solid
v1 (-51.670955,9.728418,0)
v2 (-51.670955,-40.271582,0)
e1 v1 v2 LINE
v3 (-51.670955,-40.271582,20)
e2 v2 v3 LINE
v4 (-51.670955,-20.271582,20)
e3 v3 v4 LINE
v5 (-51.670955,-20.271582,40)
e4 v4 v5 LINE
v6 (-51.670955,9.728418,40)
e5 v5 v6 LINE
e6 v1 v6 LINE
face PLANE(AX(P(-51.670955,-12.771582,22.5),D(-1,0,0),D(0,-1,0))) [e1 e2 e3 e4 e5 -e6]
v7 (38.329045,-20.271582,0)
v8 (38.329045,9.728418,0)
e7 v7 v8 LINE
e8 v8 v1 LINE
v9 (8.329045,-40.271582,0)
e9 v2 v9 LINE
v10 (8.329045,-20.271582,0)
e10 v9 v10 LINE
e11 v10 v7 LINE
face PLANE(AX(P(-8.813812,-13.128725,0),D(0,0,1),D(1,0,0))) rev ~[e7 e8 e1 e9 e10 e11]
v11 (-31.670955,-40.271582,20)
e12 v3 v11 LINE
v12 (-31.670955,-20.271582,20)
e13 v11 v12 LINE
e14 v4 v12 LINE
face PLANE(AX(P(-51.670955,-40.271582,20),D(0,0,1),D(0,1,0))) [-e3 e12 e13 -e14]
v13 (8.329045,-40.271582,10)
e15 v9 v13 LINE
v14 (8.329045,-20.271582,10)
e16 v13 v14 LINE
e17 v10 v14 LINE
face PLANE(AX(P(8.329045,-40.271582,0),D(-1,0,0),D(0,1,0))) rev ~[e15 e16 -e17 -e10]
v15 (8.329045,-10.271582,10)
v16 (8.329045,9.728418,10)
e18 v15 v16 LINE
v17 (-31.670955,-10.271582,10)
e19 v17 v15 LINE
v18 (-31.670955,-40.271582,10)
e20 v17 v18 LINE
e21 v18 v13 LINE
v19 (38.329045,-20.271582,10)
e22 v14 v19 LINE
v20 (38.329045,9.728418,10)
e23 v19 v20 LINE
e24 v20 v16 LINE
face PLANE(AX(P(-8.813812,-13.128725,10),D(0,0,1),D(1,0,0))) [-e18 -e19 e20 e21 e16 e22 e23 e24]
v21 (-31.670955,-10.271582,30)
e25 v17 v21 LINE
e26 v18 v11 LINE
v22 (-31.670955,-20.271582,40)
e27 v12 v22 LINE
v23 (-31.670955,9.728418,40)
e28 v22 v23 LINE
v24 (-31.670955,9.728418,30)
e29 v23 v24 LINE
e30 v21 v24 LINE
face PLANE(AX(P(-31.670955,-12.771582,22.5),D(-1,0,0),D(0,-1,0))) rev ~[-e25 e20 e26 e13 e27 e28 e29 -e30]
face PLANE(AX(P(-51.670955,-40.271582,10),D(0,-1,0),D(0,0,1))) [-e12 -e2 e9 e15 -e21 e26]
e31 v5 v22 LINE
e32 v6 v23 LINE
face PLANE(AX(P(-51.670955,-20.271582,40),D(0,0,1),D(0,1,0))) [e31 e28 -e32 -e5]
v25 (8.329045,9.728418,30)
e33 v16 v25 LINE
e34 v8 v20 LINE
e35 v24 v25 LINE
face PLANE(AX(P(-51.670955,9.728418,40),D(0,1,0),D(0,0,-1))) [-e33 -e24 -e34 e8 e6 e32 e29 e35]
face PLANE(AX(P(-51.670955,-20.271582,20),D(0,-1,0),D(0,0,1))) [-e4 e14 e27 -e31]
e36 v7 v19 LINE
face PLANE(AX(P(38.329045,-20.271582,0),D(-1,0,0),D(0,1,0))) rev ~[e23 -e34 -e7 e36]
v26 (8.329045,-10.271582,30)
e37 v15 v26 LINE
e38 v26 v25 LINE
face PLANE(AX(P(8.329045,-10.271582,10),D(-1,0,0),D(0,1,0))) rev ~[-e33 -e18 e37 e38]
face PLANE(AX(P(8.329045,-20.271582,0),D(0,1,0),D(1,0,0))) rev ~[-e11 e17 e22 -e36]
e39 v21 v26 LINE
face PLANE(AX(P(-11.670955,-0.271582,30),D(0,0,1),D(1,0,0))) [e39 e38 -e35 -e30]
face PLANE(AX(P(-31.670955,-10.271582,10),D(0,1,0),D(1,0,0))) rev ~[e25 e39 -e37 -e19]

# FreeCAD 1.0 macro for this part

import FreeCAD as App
import Part
import Sketcher
from FreeCAD import Vector

doc = App.newDocument("Part")
body = doc.addObject("PartDesign::Body", "Body")

# Sketch on XY plane
sketch1 = doc.addObject("Sketcher::SketchObject", "Sketch")
body.addObject(sketch1)
sketch1.AttachmentSupport = (doc.XY_Plane, [""])
sketch1.MapMode = "FlatFace"
sketch1.addGeometry(Part.LineSegment(Vector(-52, 10, 0), Vector(-52, -40, 0)), False)
sketch1.addGeometry(Part.LineSegment(Vector(-52, -40, 0), Vector(8, -40, 0)), False)
sketch1.addGeometry(Part.LineSegment(Vector(8, -40, 0), Vector(8, -20, 0)), False)
sketch1.addGeometry(Part.LineSegment(Vector(8, -20, 0), Vector(38, -20, 0)), False)
sketch1.addGeometry(Part.LineSegment(Vector(38, -20, 0), Vector(38, 10, 0)), False)
sketch1.addGeometry(Part.LineSegment(Vector(38, 10, 0), Vector(-52, 10, 0)), False)
sketch1.addConstraint(Sketcher.Constraint("Coincident", 0, 2, 1, 1))
sketch1.addConstraint(Sketcher.Constraint("Coincident", 1, 2, 2, 1))
sketch1.addConstraint(Sketcher.Constraint("Coincident", 2, 2, 3, 1))
sketch1.addConstraint(Sketcher.Constraint("Coincident", 3, 2, 4, 1))
sketch1.addConstraint(Sketcher.Constraint("Coincident", 4, 2, 5, 1))
sketch1.addConstraint(Sketcher.Constraint("Coincident", 5, 2, 0, 1))
sketch1.addConstraint(Sketcher.Constraint("Vertical", 0))
sketch1.addConstraint(Sketcher.Constraint("Horizontal", 1))
sketch1.addConstraint(Sketcher.Constraint("Vertical", 2))
sketch1.addConstraint(Sketcher.Constraint("Horizontal", 3))
sketch1.addConstraint(Sketcher.Constraint("Vertical", 4))
sketch1.addConstraint(Sketcher.Constraint("Horizontal", 5))
sketch1.addConstraint(Sketcher.Constraint("Equal", 3, 4))
sketch1.addConstraint(Sketcher.Constraint("DistanceX", 1, 1, 1, 2, 60.0))
sketch1.addConstraint(Sketcher.Constraint("DistanceX", 3, 1, 3, 2, 30.0))
sketch1.addConstraint(Sketcher.Constraint("DistanceY", 0, 2, 0, 1, 50.0))
sketch1.addConstraint(Sketcher.Constraint("DistanceY", 2, 2, -1, 1, 20.271582))
sketch1.addConstraint(Sketcher.Constraint("DistanceX", 0, 2, -1, 1, 51.670955))
pad1 = doc.addObject("PartDesign::Pad", "Pad")
body.addObject(pad1)
pad1.Profile = sketch1
pad1.Length = 10

# Sketch on YZ plane
sketch2 = doc.addObject("Sketcher::SketchObject", "Sketch001")
body.addObject(sketch2)
sketch2.AttachmentSupport = (doc.YZ_Plane, [""])
sketch2.MapMode = "FlatFace"
sketch2.AttachmentOffset = App.Placement(Vector(0, 0, -51.670955), App.Rotation())
sketch2.addGeometry(Part.LineSegment(Vector(10, 40, 0), Vector(10, 10, 0)), False)
sketch2.addGeometry(Part.LineSegment(Vector(10, 10, 0), Vector(-40, 10, 0)), False)
sketch2.addGeometry(Part.LineSegment(Vector(-40, 10, 0), Vector(-40, 20, 0)), False)
sketch2.addGeometry(Part.LineSegment(Vector(-40, 20, 0), Vector(-20, 20, 0)), False)
sketch2.addGeometry(Part.LineSegment(Vector(-20, 20, 0), Vector(-20, 40, 0)), False)
sketch2.addGeometry(Part.LineSegment(Vector(-20, 40, 0), Vector(10, 40, 0)), False)
sketch2.addConstraint(Sketcher.Constraint("Coincident", 0, 2, 1, 1))
sketch2.addConstraint(Sketcher.Constraint("Coincident", 1, 2, 2, 1))
sketch2.addConstraint(Sketcher.Constraint("Coincident", 2, 2, 3, 1))
sketch2.addConstraint(Sketcher.Constraint("Coincident", 3, 2, 4, 1))
sketch2.addConstraint(Sketcher.Constraint("Coincident", 4, 2, 5, 1))
sketch2.addConstraint(Sketcher.Constraint("Coincident", 5, 2, 0, 1))
sketch2.addConstraint(Sketcher.Constraint("Vertical", 0))
sketch2.addConstraint(Sketcher.Constraint("Horizontal", 1))
sketch2.addConstraint(Sketcher.Constraint("Vertical", 2))
sketch2.addConstraint(Sketcher.Constraint("Horizontal", 3))
sketch2.addConstraint(Sketcher.Constraint("Vertical", 4))
sketch2.addConstraint(Sketcher.Constraint("Horizontal", 5))
sketch2.addConstraint(Sketcher.Constraint("Equal", 5, 0))
sketch2.addConstraint(Sketcher.Constraint("Equal", 3, 4))
sketch2.addConstraint(Sketcher.Constraint("DistanceX", 1, 2, 1, 1, 50.0))
sketch2.addConstraint(Sketcher.Constraint("DistanceX", 3, 1, 3, 2, 20.0))
sketch2.addConstraint(Sketcher.Constraint("DistanceY", -1, 1, 0, 2, 10.0))
sketch2.addConstraint(Sketcher.Constraint("DistanceX", 3, 2, -1, 1, 20.271582))
pad2 = doc.addObject("PartDesign::Pad", "Pad001")
body.addObject(pad2)
pad2.Profile = sketch2
pad2.Length = 20

# Sketch on XY plane
sketch3 = doc.addObject("Sketcher::SketchObject", "Sketch002")
body.addObject(sketch3)
sketch3.AttachmentSupport = (doc.XY_Plane, [""])
sketch3.MapMode = "FlatFace"
sketch3.AttachmentOffset = App.Placement(Vector(0, 0, 10), App.Rotation())
sketch3.addGeometry(Part.LineSegment(Vector(-32, 10, 0), Vector(-32, -10, 0)), False)
sketch3.addGeometry(Part.LineSegment(Vector(-32, -10, 0), Vector(8, -10, 0)), False)
sketch3.addGeometry(Part.LineSegment(Vector(8, -10, 0), Vector(8, 10, 0)), False)
sketch3.addGeometry(Part.LineSegment(Vector(8, 10, 0), Vector(-32, 10, 0)), False)
sketch3.addConstraint(Sketcher.Constraint("Coincident", 0, 2, 1, 1))
sketch3.addConstraint(Sketcher.Constraint("Coincident", 1, 2, 2, 1))
sketch3.addConstraint(Sketcher.Constraint("Coincident", 2, 2, 3, 1))
sketch3.addConstraint(Sketcher.Constraint("Coincident", 3, 2, 0, 1))
sketch3.addConstraint(Sketcher.Constraint("Vertical", 0))
sketch3.addConstraint(Sketcher.Constraint("Horizontal", 1))
sketch3.addConstraint(Sketcher.Constraint("Vertical", 2))
sketch3.addConstraint(Sketcher.Constraint("Horizontal", 3))
sketch3.addConstraint(Sketcher.Constraint("DistanceX", 1, 1, 1, 2, 40.0))
sketch3.addConstraint(Sketcher.Constraint("DistanceY", 0, 2, 0, 1, 20.0))
sketch3.addConstraint(Sketcher.Constraint("DistanceX", 0, 2, -1, 1, 31.670955))
sketch3.addConstraint(Sketcher.Constraint("DistanceY", 0, 2, -1, 1, 10.271582))
pad3 = doc.addObject("PartDesign::Pad", "Pad002")
body.addObject(pad3)
pad3.Profile = sketch3
pad3.Length = 20

doc.recompute()
